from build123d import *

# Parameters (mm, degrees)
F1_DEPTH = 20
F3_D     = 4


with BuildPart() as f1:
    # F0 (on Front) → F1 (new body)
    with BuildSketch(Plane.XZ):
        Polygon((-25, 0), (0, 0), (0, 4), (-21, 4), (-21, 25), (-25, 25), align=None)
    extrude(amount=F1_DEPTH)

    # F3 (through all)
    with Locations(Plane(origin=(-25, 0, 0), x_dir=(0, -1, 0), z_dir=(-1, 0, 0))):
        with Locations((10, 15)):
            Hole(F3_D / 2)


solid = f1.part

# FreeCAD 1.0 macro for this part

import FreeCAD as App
import Part
import Sketcher
from FreeCAD import Vector


def add_polygon(sketch, points):
    """Adds a closed chain of lines whose ends are joined by coincident constraints."""
    first, n = sketch.GeometryCount, len(points)
    for a, b in zip(points, points[1:] + points[:1]):
        sketch.addGeometry(Part.LineSegment(App.Vector(*a, 0), App.Vector(*b, 0)), False)
    for i in range(n):
        sketch.addConstraint(Sketcher.Constraint("Coincident", first + i, 2, first + (i + 1) % n, 1))

doc = App.newDocument("Part")
body = doc.addObject("PartDesign::Body", "Body")

# Sketch on XZ plane
sketch1 = body.newObject("Sketcher::SketchObject", "Sketch")
sketch1.AttachmentSupport = (doc.getObject("XZ_Plane"), [""])
sketch1.MapMode = "FlatFace"
add_polygon(sketch1, [(-25, 0), (0, 0), (0, 4), (-21, 4), (-21, 25), (-25, 25)])  # lines 0-5
sketch1.addConstraint([
    Sketcher.Constraint("Horizontal", 0),
    Sketcher.Constraint("Vertical", 1),
    Sketcher.Constraint("Horizontal", 2),
    Sketcher.Constraint("Vertical", 3),
    Sketcher.Constraint("Horizontal", 4),
    Sketcher.Constraint("Vertical", 5),
    Sketcher.Constraint("Coincident", 0, 2, -1, 1),
    Sketcher.Constraint("Equal", 4, 1),
    Sketcher.Constraint("Equal", 2, 3),
    Sketcher.Constraint("DistanceX", 0, 1, 0, 2, 25.0),
    Sketcher.Constraint("DistanceX", 2, 2, 2, 1, 21.0),
])
pad1 = body.newObject("PartDesign::Pad", "Pad")
pad1.Profile = sketch1
pad1.Length = 20

# Sketch on YZ plane
sketch2 = body.newObject("Sketcher::SketchObject", "Sketch001")
sketch2.AttachmentSupport = (doc.getObject("YZ_Plane"), [""])
sketch2.MapMode = "FlatFace"
sketch2.AttachmentOffset = App.Placement(Vector(0, 0, -25), App.Rotation())
sketch2.addGeometry(Part.Circle(Vector(-10, 15, 0), Vector(0, 0, 1), 2), False)
sketch2.addConstraint([
    Sketcher.Constraint("Diameter", 0, 4.0),
    Sketcher.Constraint("DistanceX", 0, 3, -1, 1, 10.0),
    Sketcher.Constraint("DistanceY", -1, 1, 0, 3, 15.0),
])
doc.recompute()
hole = body.newObject("PartDesign::Hole", "Hole")
hole.Profile = sketch2
hole.ThreadType = "None"
hole.Diameter = 4
hole.DepthType = "ThroughAll"
hole.Reversed = True

doc.recompute()
